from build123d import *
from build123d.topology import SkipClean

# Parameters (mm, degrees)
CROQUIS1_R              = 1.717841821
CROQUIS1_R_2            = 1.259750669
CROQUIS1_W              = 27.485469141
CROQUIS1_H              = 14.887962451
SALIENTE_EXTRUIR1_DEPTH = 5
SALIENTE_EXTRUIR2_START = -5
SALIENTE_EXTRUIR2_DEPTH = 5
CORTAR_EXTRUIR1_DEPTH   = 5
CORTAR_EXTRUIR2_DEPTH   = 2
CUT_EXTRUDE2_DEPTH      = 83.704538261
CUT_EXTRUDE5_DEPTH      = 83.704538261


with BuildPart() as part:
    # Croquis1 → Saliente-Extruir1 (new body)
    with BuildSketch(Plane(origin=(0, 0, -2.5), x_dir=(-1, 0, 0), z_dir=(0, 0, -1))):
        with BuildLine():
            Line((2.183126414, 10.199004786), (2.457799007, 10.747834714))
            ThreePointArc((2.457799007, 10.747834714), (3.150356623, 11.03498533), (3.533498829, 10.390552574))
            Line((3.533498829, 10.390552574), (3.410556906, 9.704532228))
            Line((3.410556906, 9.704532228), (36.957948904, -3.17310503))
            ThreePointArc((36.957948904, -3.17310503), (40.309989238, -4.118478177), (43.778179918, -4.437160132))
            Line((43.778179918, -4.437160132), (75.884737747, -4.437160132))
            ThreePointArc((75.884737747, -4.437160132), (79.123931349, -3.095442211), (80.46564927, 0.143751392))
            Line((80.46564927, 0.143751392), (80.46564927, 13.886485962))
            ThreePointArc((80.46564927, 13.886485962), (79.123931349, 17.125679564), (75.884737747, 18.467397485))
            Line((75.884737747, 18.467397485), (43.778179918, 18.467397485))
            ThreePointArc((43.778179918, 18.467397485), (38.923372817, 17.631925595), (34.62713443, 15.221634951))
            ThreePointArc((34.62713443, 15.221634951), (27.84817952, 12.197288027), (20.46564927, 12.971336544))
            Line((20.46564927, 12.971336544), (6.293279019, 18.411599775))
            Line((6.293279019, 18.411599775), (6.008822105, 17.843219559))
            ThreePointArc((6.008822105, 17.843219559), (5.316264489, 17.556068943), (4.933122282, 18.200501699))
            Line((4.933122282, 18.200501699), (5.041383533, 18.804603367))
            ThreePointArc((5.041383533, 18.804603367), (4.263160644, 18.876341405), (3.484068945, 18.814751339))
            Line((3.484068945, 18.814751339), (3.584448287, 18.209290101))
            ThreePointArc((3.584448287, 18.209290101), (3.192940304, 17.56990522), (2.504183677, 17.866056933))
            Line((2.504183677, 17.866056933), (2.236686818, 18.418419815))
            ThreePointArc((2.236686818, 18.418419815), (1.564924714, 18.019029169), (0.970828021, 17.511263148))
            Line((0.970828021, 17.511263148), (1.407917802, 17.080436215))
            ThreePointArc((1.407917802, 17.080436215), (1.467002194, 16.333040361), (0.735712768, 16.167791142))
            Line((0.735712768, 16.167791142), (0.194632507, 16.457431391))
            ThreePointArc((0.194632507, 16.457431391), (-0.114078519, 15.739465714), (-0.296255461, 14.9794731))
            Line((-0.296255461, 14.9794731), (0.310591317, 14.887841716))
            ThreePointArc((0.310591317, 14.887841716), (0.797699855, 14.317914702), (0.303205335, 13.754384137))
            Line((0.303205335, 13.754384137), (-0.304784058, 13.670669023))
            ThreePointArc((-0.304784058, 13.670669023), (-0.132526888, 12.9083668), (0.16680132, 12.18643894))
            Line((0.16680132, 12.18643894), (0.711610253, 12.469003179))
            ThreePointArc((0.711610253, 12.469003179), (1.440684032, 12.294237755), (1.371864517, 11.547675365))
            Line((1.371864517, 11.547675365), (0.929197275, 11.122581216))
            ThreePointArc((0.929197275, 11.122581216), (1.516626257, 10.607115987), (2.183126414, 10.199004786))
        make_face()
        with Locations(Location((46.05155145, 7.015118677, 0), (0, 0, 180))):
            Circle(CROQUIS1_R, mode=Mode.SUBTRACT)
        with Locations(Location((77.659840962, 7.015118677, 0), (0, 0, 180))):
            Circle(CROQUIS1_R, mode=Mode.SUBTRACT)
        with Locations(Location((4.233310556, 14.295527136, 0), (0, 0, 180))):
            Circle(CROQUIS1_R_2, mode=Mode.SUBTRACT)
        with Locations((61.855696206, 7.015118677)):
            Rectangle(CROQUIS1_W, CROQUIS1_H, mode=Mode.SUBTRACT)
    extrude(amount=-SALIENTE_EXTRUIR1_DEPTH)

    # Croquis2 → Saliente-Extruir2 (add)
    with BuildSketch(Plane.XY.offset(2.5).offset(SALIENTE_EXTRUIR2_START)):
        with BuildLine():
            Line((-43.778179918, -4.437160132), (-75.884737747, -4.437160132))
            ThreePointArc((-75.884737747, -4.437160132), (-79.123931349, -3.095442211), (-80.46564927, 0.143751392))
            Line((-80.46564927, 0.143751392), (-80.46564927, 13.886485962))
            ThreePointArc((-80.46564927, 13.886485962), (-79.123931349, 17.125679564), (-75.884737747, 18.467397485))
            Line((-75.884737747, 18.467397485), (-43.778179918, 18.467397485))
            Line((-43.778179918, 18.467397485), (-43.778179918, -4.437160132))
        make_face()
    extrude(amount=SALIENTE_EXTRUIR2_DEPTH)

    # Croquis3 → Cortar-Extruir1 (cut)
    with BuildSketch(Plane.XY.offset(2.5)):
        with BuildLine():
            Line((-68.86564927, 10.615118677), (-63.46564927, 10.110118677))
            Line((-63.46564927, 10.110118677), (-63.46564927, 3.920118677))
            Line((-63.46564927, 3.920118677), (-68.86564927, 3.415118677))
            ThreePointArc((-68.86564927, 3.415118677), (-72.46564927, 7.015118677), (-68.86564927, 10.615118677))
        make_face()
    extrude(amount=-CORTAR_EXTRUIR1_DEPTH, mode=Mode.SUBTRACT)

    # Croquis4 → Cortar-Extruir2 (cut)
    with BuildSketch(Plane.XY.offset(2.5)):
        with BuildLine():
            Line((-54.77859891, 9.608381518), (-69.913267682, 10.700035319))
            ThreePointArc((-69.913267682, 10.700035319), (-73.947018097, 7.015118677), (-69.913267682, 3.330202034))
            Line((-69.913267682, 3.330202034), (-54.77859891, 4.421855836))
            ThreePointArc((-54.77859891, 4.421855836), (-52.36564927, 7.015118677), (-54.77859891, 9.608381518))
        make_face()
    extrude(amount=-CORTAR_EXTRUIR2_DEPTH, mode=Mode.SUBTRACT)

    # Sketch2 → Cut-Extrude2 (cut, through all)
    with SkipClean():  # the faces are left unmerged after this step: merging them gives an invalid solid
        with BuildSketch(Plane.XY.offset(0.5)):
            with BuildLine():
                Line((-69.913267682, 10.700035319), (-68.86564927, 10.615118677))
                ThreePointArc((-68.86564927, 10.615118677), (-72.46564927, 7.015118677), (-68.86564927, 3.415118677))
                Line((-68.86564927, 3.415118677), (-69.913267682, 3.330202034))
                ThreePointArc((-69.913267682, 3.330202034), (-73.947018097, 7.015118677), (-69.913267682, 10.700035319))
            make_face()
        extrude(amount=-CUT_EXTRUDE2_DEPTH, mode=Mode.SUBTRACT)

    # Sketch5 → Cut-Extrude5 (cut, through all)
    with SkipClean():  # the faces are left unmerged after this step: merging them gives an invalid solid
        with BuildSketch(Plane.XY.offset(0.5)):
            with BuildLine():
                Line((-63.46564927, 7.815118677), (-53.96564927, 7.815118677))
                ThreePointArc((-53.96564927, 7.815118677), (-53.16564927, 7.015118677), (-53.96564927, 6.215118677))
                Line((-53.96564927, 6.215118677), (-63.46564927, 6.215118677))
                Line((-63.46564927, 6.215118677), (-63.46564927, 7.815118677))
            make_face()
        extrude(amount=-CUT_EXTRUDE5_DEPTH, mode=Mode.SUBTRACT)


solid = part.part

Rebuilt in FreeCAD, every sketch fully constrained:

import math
import FreeCAD as App
import Part
import Sketcher

V = App.Vector
Q = App.Units.Quantity


def add_polygon(sketch, points):
    """Adds a closed chain of lines whose ends are joined by coincident constraints."""
    first, n = sketch.GeometryCount, len(points)
    for a, b in zip(points, points[1:] + points[:1]):
        sketch.addGeometry(Part.LineSegment(App.Vector(*a, 0), App.Vector(*b, 0)), False)
    for i in range(n):
        sketch.addConstraint(Sketcher.Constraint("Coincident", first + i, 2, first + (i + 1) % n, 1))

doc = App.newDocument("Part")
body = doc.addObject("PartDesign::Body", "Body")

# Sketch on XY plane
sketch1 = doc.addObject("Sketcher::SketchObject", "Sketch")
body.addObject(sketch1)
sketch1.AttachmentSupport = (doc.XY_Plane, [""])
sketch1.MapMode = "FlatFace"
sketch1.AttachmentOffset = App.Placement(V(0, 0, -2.5), App.Rotation())
sketch1.addGeometry(Part.LineSegment(V(-2.183126, 10.199005, 0), V(-2.457799, 10.747835, 0)), False)  # 0
sketch1.addGeometry(Part.ArcOfCircle(Part.Circle(V(-2.969864, 10.491562, 0), V(0, 0, 1), 0.572614), math.radians(26.586564), math.radians(190.160142)), False)  # 1
sketch1.addGeometry(Part.LineSegment(V(-3.533499, 10.390553, 0), V(-3.410557, 9.704532, 0)), False)  # 2
sketch1.addGeometry(Part.LineSegment(V(-3.410557, 9.704532, 0), V(-36.957949, -3.173105, 0)), False)  # 3
sketch1.addGeometry(Part.ArcOfCircle(Part.Circle(V(-43.77818, 14.594204, 0), V(0, 0, 1), 19.031364), math.radians(-90), math.radians(-69)), False)  # 4
sketch1.addGeometry(Part.LineSegment(V(-43.77818, -4.43716, 0), V(-75.884738, -4.43716, 0)), False)  # 5
sketch1.addGeometry(Part.ArcOfCircle(Part.Circle(V(-75.884738, 0.143751, 0), V(0, 0, 1), 4.580912), math.radians(180), math.radians(270)), False)  # 6
sketch1.addGeometry(Part.LineSegment(V(-80.465649, 0.143751, 0), V(-80.465649, 13.886486, 0)), False)  # 7
sketch1.addGeometry(Part.ArcOfCircle(Part.Circle(V(-75.884738, 13.886486, 0), V(0, 0, 1), 4.580912), math.radians(90), math.radians(180)), False)  # 8
sketch1.addGeometry(Part.LineSegment(V(-75.884738, 18.467397, 0), V(-43.77818, 18.467397, 0)), False)  # 9
sketch1.addGeometry(Part.ArcOfCircle(Part.Circle(V(-43.77818, 3.944368, 0), V(0, 0, 1), 14.523029), math.radians(50.942068), math.radians(90)), False)  # 10
sketch1.addGeometry(Part.ArcOfCircle(Part.Circle(V(-25.59985, 26.346386, 0), V(0, 0, 1), 14.326617), math.radians(-129.057932), math.radians(-69)), False)  # 11
sketch1.addGeometry(Part.LineSegment(V(-20.465649, 12.971337, 0), V(-6.293279, 18.4116, 0)), False)  # 12
sketch1.addGeometry(Part.LineSegment(V(-6.293279, 18.4116, 0), V(-6.008822, 17.84322, 0)), False)  # 13
sketch1.addGeometry(Part.ArcOfCircle(Part.Circle(V(-5.496757, 18.099493, 0), V(0, 0, 1), 0.572614), math.radians(-153.413436), math.radians(10.160142)), False)  # 14
sketch1.addGeometry(Part.LineSegment(V(-4.933122, 18.200502, 0), V(-5.041384, 18.804603, 0)), False)  # 15
sketch1.addGeometry(Part.ArcOfCircle(Part.Circle(V(-4.233311, 14.295527, 0), V(0, 0, 1), 4.580911), math.radians(80.586563), math.radians(100.160142)), False)  # 16
sketch1.addGeometry(Part.LineSegment(V(-3.484069, 18.814751, 0), V(-3.584448, 18.20929, 0)), False)  # 17
sketch1.addGeometry(Part.ArcOfCircle(Part.Circle(V(-3.019545, 18.115635, 0), V(0, 0, 1), 0.572614), math.radians(170.586564), math.radians(334.160142)), False)  # 18
sketch1.addGeometry(Part.LineSegment(V(-2.504184, 17.866057, 0), V(-2.236687, 18.41842, 0)), False)  # 19
sketch1.addGeometry(Part.ArcOfCircle(Part.Circle(V(-4.233311, 14.295527, 0), V(0, 0, 1), 4.580912), math.radians(44.586563), math.radians(64.160142)), False)  # 20
sketch1.addGeometry(Part.LineSegment(V(-0.970828, 17.511263, 0), V(-1.407918, 17.080436, 0)), False)  # 21
sketch1.addGeometry(Part.ArcOfCircle(Part.Circle(V(-1.005951, 16.672626, 0), V(0, 0, 1), 0.572614), math.radians(134.586564), math.radians(298.160142)), False)  # 22
sketch1.addGeometry(Part.LineSegment(V(-0.735713, 16.167791, 0), V(-0.194633, 16.457431, 0)), False)  # 23
sketch1.addGeometry(Part.ArcOfCircle(Part.Circle(V(-4.233311, 14.295527, 0), V(0, 0, 1), 4.580912), math.radians(8.586564), math.radians(28.160142)), False)  # 24
sketch1.addGeometry(Part.LineSegment(V(0.296255, 14.979473, 0), V(-0.310591, 14.887842, 0)), False)  # 25
sketch1.addGeometry(Part.ArcOfCircle(Part.Circle(V(-0.225098, 14.321646, 0), V(0, 0, 1), 0.572614), math.radians(98.586564), math.radians(262.160142)), False)  # 26
sketch1.addGeometry(Part.LineSegment(V(-0.303205, 13.754384, 0), V(0.304784, 13.670669, 0)), False)  # 27
sketch1.addGeometry(Part.ArcOfCircle(Part.Circle(V(-4.233311, 14.295527, 0), V(0, 0, 1), 4.580912), math.radians(-27.413436), math.radians(-7.839858)), False)  # 28
sketch1.addGeometry(Part.LineSegment(V(-0.166801, 12.186439, 0), V(-0.71161, 12.469003, 0)), False)  # 29
sketch1.addGeometry(Part.ArcOfCircle(Part.Circle(V(-0.975246, 11.96069, 0), V(0, 0, 1), 0.572614), math.radians(62.586563), math.radians(226.160142)), False)  # 30
sketch1.addGeometry(Part.LineSegment(V(-1.371865, 11.547675, 0), V(-0.929197, 11.122581, 0)), False)  # 31
sketch1.addGeometry(Part.ArcOfCircle(Part.Circle(V(-4.233311, 14.295527, 0), V(0, 0, 1), 4.580912), math.radians(-63.413437), math.radians(-43.839858)), False)  # 32
sketch1.addGeometry(Part.Circle(V(-46.051551, 7.015119, 0), V(0, 0, 1), 1.717842), False)  # 33
add_polygon(sketch1, [(-75.598431, -0.428863), (-48.112962, -0.428863), (-48.112962, 14.4591), (-75.598431, 14.4591)])  # lines 34-37
sketch1.addGeometry(Part.Circle(V(-77.659841, 7.015119, 0), V(0, 0, 1), 1.717842), False)  # 38
sketch1.addGeometry(Part.Circle(V(-4.233311, 14.295527, 0), V(0, 0, 1), 1.259751), False)  # 39
sketch1.addConstraint([
    Sketcher.Constraint("Tangent", 0, 2, 1, 1),
    Sketcher.Constraint("Tangent", 1, 2, 2, 1),
    Sketcher.Constraint("Coincident", 2, 2, 3, 1),
    Sketcher.Constraint("Tangent", 3, 2, 4, 2),
    Sketcher.Constraint("Tangent", 4, 1, 5, 1),
    Sketcher.Constraint("Tangent", 5, 2, 6, 2),
    Sketcher.Constraint("Tangent", 6, 1, 7, 1),
    Sketcher.Constraint("Tangent", 7, 2, 8, 2),
    Sketcher.Constraint("Tangent", 8, 1, 9, 1),
    Sketcher.Constraint("Tangent", 9, 2, 10, 2),
    Sketcher.Constraint("Tangent", 10, 1, 11, 1),
    Sketcher.Constraint("Tangent", 11, 2, 12, 1),
    Sketcher.Constraint("Coincident", 12, 2, 13, 1),
    Sketcher.Constraint("Tangent", 13, 2, 14, 1),
    Sketcher.Constraint("Tangent", 14, 2, 15, 1),
    Sketcher.Constraint("Coincident", 15, 2, 16, 2),
    Sketcher.Constraint("Coincident", 16, 1, 17, 1),
    Sketcher.Constraint("Tangent", 17, 2, 18, 1),
    Sketcher.Constraint("Tangent", 18, 2, 19, 1),
    Sketcher.Constraint("Coincident", 19, 2, 20, 2),
    Sketcher.Constraint("Coincident", 20, 1, 21, 1),
    Sketcher.Constraint("Tangent", 21, 2, 22, 1),
    Sketcher.Constraint("Tangent", 22, 2, 23, 1),
    Sketcher.Constraint("Coincident", 23, 2, 24, 2),
    Sketcher.Constraint("Coincident", 24, 1, 25, 1),
    Sketcher.Constraint("Tangent", 25, 2, 26, 1),
    Sketcher.Constraint("Tangent", 26, 2, 27, 1),
    Sketcher.Constraint("Coincident", 27, 2, 28, 2),
    Sketcher.Constraint("Coincident", 28, 1, 29, 1),
    Sketcher.Constraint("Tangent", 29, 2, 30, 1),
    Sketcher.Constraint("Tangent", 30, 2, 31, 1),
    Sketcher.Constraint("Coincident", 31, 2, 32, 2),
    Sketcher.Constraint("Coincident", 32, 1, 0, 1),
    Sketcher.Constraint("Horizontal", 5),
    Sketcher.Constraint("Vertical", 7),
    Sketcher.Constraint("Horizontal", 9),
    Sketcher.Constraint("Horizontal", 34),
    Sketcher.Constraint("Vertical", 35),
    Sketcher.Constraint("Horizontal", 36),
    Sketcher.Constraint("Vertical", 37),
    Sketcher.Constraint("Coincident", 20, 3, 16, 3),
    Sketcher.Constraint("Coincident", 24, 3, 16, 3),
    Sketcher.Constraint("Coincident", 28, 3, 16, 3),
    Sketcher.Constraint("Coincident", 32, 3, 16, 3),
    Sketcher.Constraint("Coincident", 39, 3, 16, 3),
    Sketcher.Constraint("Equal", 6, 8),
    Sketcher.Constraint("Equal", 1, 14),
    Sketcher.Constraint("Equal", 8, 16),
    Sketcher.Constraint("Equal", 14, 18),
    Sketcher.Constraint("Equal", 16, 20),
    Sketcher.Constraint("Equal", 18, 22),
    Sketcher.Constraint("Equal", 20, 24),
    Sketcher.Constraint("Equal", 22, 26),
    Sketcher.Constraint("Equal", 24, 28),
    Sketcher.Constraint("Equal", 26, 30),
    Sketcher.Constraint("Equal", 28, 32),
    Sketcher.Constraint("Equal", 33, 38),
    Sketcher.Constraint("Parallel", 3, 12),
    Sketcher.Constraint("Parallel", 0, 13),
    Sketcher.Constraint("Parallel", 2, 15),
    Sketcher.Constraint("Horizontal", 33, 3, 38, 3),
    Sketcher.Constraint("Vertical", 4, 3, 10, 3),
    Sketcher.Constraint("Equal", 0, 15),
    Sketcher.Constraint("Equal", 15, 17),
    Sketcher.Constraint("Equal", 17, 19),
    Sketcher.Constraint("Equal", 19, 21),
    Sketcher.Constraint("Equal", 21, 23),
    Sketcher.Constraint("Equal", 23, 25),
    Sketcher.Constraint("Equal", 25, 27),
    Sketcher.Constraint("Equal", 27, 29),
    Sketcher.Constraint("Equal", 29, 31),
    Sketcher.Constraint("Angle", 3, Q("-159 deg")),
    Sketcher.Constraint("Diameter", 39, 2.519501),
    Sketcher.Constraint("Radius", 6, 4.580912),
    Sketcher.Constraint("Radius", 10, 14.523029),
    Sketcher.Constraint("Diameter", 33, 3.435684),
    Sketcher.Constraint("Radius", 1, 0.572614),
    Sketcher.Constraint("Radius", 4, 19.031364),
    Sketcher.Constraint("Radius", 11, 14.326617),
    Sketcher.Constraint("DistanceX", 1, 3, 30, 2, 1.598),
    Sketcher.Constraint("DistanceX", 34, 1, 34, 2, 27.485469),
    Sketcher.Constraint("DistanceX", 26, 3, -1, 1, 0.225098),
    Sketcher.Constraint("DistanceX", 0, 2, -1, 1, 2.457799),
    Sketcher.Constraint("DistanceX", 1, 2, -1, 1, 3.533499),
    Sketcher.Constraint("DistanceY", -1, 1, 12, 2, 18.4116),
    Sketcher.Constraint("DistanceY", -1, 1, 14, 2, 18.200502),
    Sketcher.Constraint("DistanceX", 28, 1, -1, 1, 0.166801),
    Sketcher.Constraint("DistanceY", -1, 1, 35, 2, 14.4591),
    Sketcher.Constraint("DistanceY", 8, 3, 11, 3, 12.4599),
    Sketcher.Constraint("DistanceY", 16, 3, 22, 3, 2.377099),
    Sketcher.Constraint("DistanceX", 33, 3, 11, 3, 20.451702),
    Sketcher.Constraint("DistanceY", 14, 2, 15, 2, 0.604102),
    Sketcher.Constraint("DistanceY", 21, 2, 18, 3, 1.035199),
    Sketcher.Constraint("DistanceX", 0, 2, 31, 2, 1.528602),
    Sketcher.Constraint("Distance", 2, 0.69695),
    Sketcher.Constraint("Distance", 3, 35.934121),
    Sketcher.Constraint("DistanceX", 5, 2, 5, 1, 32.106558),
    Sketcher.Constraint("DistanceY", 7, 1, 7, 2, 13.742735),
    Sketcher.Constraint("DistanceY", 35, 1, 35, 2, 14.887962),
    Sketcher.Constraint("DistanceY", -1, 1, 1, 3, 10.491562),
    Sketcher.Constraint("DistanceX", 22, 3, -1, 1, 1.005951),
    Sketcher.Constraint("DistanceY", -1, 1, 33, 3, 7.015119),
    Sketcher.Constraint("DistanceX", 38, 3, -1, 1, 77.659841),
    Sketcher.Constraint("DistanceX", 16, 1, -1, 1, 3.484069),
    Sketcher.Constraint("DistanceX", 25, 2, -1, 1, 0.310591),
    Sketcher.Constraint("DistanceX", 34, 2, -1, 1, 48.112962),
])
pad1 = doc.addObject("PartDesign::Pad", "Pad")
body.addObject(pad1)
pad1.Profile = sketch1
pad1.Length = 5

# Sketch on XY plane
sketch2 = doc.addObject("Sketcher::SketchObject", "Sketch001")
body.addObject(sketch2)
sketch2.AttachmentSupport = (doc.XY_Plane, [""])
sketch2.MapMode = "FlatFace"
sketch2.AttachmentOffset = App.Placement(V(0, 0, -2.5), App.Rotation())
sketch2.addGeometry([
    Part.LineSegment(V(-75.884738, -4.43716, 0), V(-43.77818, -4.43716, 0)),  # 0
    Part.LineSegment(V(-43.77818, -4.43716, 0), V(-43.77818, 18.467397, 0)),  # 1
    Part.LineSegment(V(-43.77818, 18.467397, 0), V(-75.884738, 18.467397, 0)),  # 2
    Part.ArcOfCircle(Part.Circle(V(-75.884738, 13.886486, 0), V(0, 0, 1), 4.580912), math.radians(90), math.radians(180)),  # 3
    Part.LineSegment(V(-80.465649, 13.886486, 0), V(-80.465649, 0.143751, 0)),  # 4
    Part.ArcOfCircle(Part.Circle(V(-75.884738, 0.143751, 0), V(0, 0, 1), 4.580912), math.radians(180), math.radians(270)),  # 5
], False)
sketch2.addConstraint([
    Sketcher.Constraint("Coincident", 0, 2, 1, 1),
    Sketcher.Constraint("Coincident", 1, 2, 2, 1),
    Sketcher.Constraint("Tangent", 2, 2, 3, 1),
    Sketcher.Constraint("Tangent", 3, 2, 4, 1),
    Sketcher.Constraint("Tangent", 4, 2, 5, 1),
    Sketcher.Constraint("Tangent", 5, 2, 0, 1),
    Sketcher.Constraint("Horizontal", 0),
    Sketcher.Constraint("Vertical", 1),
    Sketcher.Constraint("Horizontal", 2),
    Sketcher.Constraint("Vertical", 4),
    Sketcher.Constraint("Equal", 3, 5),
    Sketcher.Constraint("Radius", 3, 4.580912),
    Sketcher.Constraint("DistanceX", 0, 1, 0, 2, 32.106558),
    Sketcher.Constraint("DistanceY", 1, 1, 1, 2, 22.904558),
    Sketcher.Constraint("DistanceY", -1, 1, 5, 3, 0.143751),
    Sketcher.Constraint("DistanceX", 0, 2, -1, 1, 43.77818),
])
pad2 = doc.addObject("PartDesign::Pad", "Pad001")
body.addObject(pad2)
pad2.Profile = sketch2
pad2.Length = 5

# Sketch on XY plane
sketch3 = doc.addObject("Sketcher::SketchObject", "Sketch002")
body.addObject(sketch3)
sketch3.AttachmentSupport = (doc.XY_Plane, [""])
sketch3.MapMode = "FlatFace"
sketch3.AttachmentOffset = App.Placement(V(0, 0, 2.5), App.Rotation())
sketch3.addGeometry([
    Part.LineSegment(V(-63.465649, 10.110119, 0), V(-68.865649, 10.615119, 0)),
    Part.ArcOfCircle(Part.Circle(V(-68.865649, 7.015119, 0), V(0, 0, 1), 3.6), math.radians(90), math.radians(270)),
    Part.LineSegment(V(-68.865649, 3.415119, 0), V(-63.465649, 3.920119, 0)),
    Part.LineSegment(V(-63.465649, 3.920119, 0), V(-63.465649, 10.110119, 0)),
], False)
sketch3.addConstraint([
    Sketcher.Constraint("Coincident", 0, 2, 1, 1),
    Sketcher.Constraint("Coincident", 1, 2, 2, 1),
    Sketcher.Constraint("Coincident", 2, 2, 3, 1),
    Sketcher.Constraint("Coincident", 3, 2, 0, 1),
    Sketcher.Constraint("Vertical", 3),
    Sketcher.Constraint("Vertical", 1, 3, 0, 2),
    Sketcher.Constraint("Vertical", 0, 2, 1, 2),
    Sketcher.Constraint("Equal", 0, 2),
    Sketcher.Constraint("Radius", 1, 3.6),
    Sketcher.Constraint("DistanceY", 3, 1, 3, 2, 6.19),
    Sketcher.Constraint("DistanceX", 1, 2, 2, 2, 5.4),
    Sketcher.Constraint("DistanceX", 1, 3, -1, 1, 68.865649),
    Sketcher.Constraint("DistanceY", -1, 1, 1, 3, 7.015119),
])
pocket1 = doc.addObject("PartDesign::Pocket", "Pocket")
body.addObject(pocket1)
pocket1.Profile = sketch3
pocket1.Length = 5

# Sketch on XY plane
sketch4 = doc.addObject("Sketcher::SketchObject", "Sketch003")
body.addObject(sketch4)
sketch4.AttachmentSupport = (doc.XY_Plane, [""])
sketch4.MapMode = "FlatFace"
sketch4.AttachmentOffset = App.Placement(V(0, 0, 2.5), App.Rotation())
sketch4.addGeometry([
    Part.LineSegment(V(-54.778599, 9.608382, 0), V(-69.913268, 10.700035, 0)),
    Part.ArcOfCircle(Part.Circle(V(-70.247018, 7.015119, 0), V(0, 0, 1), 3.7), math.radians(84.824725), math.radians(275.175275)),
    Part.LineSegment(V(-69.913268, 3.330202, 0), V(-54.778599, 4.421856, 0)),
    Part.ArcOfCircle(Part.Circle(V(-54.965649, 7.015119, 0), V(0, 0, 1), 2.6), math.radians(-85.874437), math.radians(85.874437)),
], False)
sketch4.addConstraint([
    Sketcher.Constraint("Coincident", 0, 2, 1, 1),
    Sketcher.Constraint("Coincident", 1, 2, 2, 1),
    Sketcher.Constraint("Coincident", 2, 2, 3, 1),
    Sketcher.Constraint("Coincident", 3, 2, 0, 1),
    Sketcher.Constraint("Radius", 1, 3.7),
    Sketcher.Constraint("Radius", 3, 2.6),
    Sketcher.Constraint("DistanceX", 2, 2, -1, 1, 54.778599),
    Sketcher.Constraint("DistanceX", 3, 2, -1, 1, 54.778599),
    Sketcher.Constraint("DistanceX", 1, 3, -1, 1, 70.247018),
    Sketcher.Constraint("DistanceY", -1, 1, 1, 3, 7.015119),
    Sketcher.Constraint("DistanceX", 3, 3, -1, 1, 54.965649),
    Sketcher.Constraint("DistanceY", -1, 1, 3, 3, 7.015119),
    Sketcher.Constraint("DistanceX", 1, 3, 0, 2, 0.33375),
    Sketcher.Constraint("DistanceX", 1, 3, 1, 2, 0.33375),
])
pocket2 = doc.addObject("PartDesign::Pocket", "Pocket001")
body.addObject(pocket2)
pocket2.Profile = sketch4
pocket2.Length = 2

# Sketch on XY plane
sketch5 = doc.addObject("Sketcher::SketchObject", "Sketch004")
body.addObject(sketch5)
sketch5.AttachmentSupport = (doc.XY_Plane, [""])
sketch5.MapMode = "FlatFace"
sketch5.AttachmentOffset = App.Placement(V(0, 0, 0.5), App.Rotation())
sketch5.addGeometry([
    Part.LineSegment(V(-68.865649, 10.615119, 0), V(-69.913268, 10.700035, 0)),
    Part.ArcOfCircle(Part.Circle(V(-70.247018, 7.015119, 0), V(0, 0, 1), 3.7), math.radians(84.824725), math.radians(275.175275)),
    Part.LineSegment(V(-69.913268, 3.330202, 0), V(-68.865649, 3.415119, 0)),
    Part.ArcOfCircle(Part.Circle(V(-68.865649, 7.015119, 0), V(0, 0, 1), 3.6), math.radians(90), math.radians(270)),
], False)
sketch5.addConstraint([
    Sketcher.Constraint("Coincident", 0, 2, 1, 1),
    Sketcher.Constraint("Coincident", 1, 2, 2, 1),
    Sketcher.Constraint("Coincident", 2, 2, 3, 2),
    Sketcher.Constraint("Coincident", 3, 1, 0, 1),
    Sketcher.Constraint("Horizontal", 1, 3, 3, 3),
    Sketcher.Constraint("Vertical", 0, 2, 1, 2),
    Sketcher.Constraint("Vertical", 3, 3, 2, 2),
    Sketcher.Constraint("Vertical", 2, 2, 3, 1),
    Sketcher.Constraint("Radius", 1, 3.7),
    Sketcher.Constraint("Radius", 3, 3.6),
    Sketcher.Constraint("DistanceX", 1, 3, -1, 1, 70.247018),
    Sketcher.Constraint("DistanceY", -1, 1, 1, 3, 7.015119),
    Sketcher.Constraint("DistanceX", 3, 3, -1, 1, 68.865649),
    Sketcher.Constraint("DistanceX", 1, 3, 0, 2, 0.33375),
])
pocket3 = doc.addObject("PartDesign::Pocket", "Pocket002")
body.addObject(pocket3)
pocket3.Profile = sketch5
pocket3.Type = "ThroughAll"

# Sketch on XY plane
sketch6 = doc.addObject("Sketcher::SketchObject", "Sketch005")
body.addObject(sketch6)
sketch6.AttachmentSupport = (doc.XY_Plane, [""])
sketch6.MapMode = "FlatFace"
sketch6.AttachmentOffset = App.Placement(V(0, 0, 0.5), App.Rotation())
sketch6.addGeometry([
    Part.LineSegment(V(-53.965649, 7.815119, 0), V(-63.465649, 7.815119, 0)),
    Part.LineSegment(V(-63.465649, 7.815119, 0), V(-63.465649, 6.215119, 0)),
    Part.LineSegment(V(-63.465649, 6.215119, 0), V(-53.965649, 6.215119, 0)),
    Part.ArcOfCircle(Part.Circle(V(-53.965649, 7.015119, 0), V(0, 0, 1), 0.8), math.radians(-90), math.radians(90)),
], False)
sketch6.addConstraint([
    Sketcher.Constraint("Coincident", 0, 2, 1, 1),
    Sketcher.Constraint("Coincident", 1, 2, 2, 1),
    Sketcher.Constraint("Tangent", 2, 2, 3, 1),
    Sketcher.Constraint("Tangent", 3, 2, 0, 1),
    Sketcher.Constraint("Horizontal", 0),
    Sketcher.Constraint("Vertical", 1),
    Sketcher.Constraint("Horizontal", 2),
    Sketcher.Constraint("Radius", 3, 0.8),
    Sketcher.Constraint("DistanceX", 0, 2, 0, 1, 9.5),
    Sketcher.Constraint("DistanceX", 3, 3, -1, 1, 53.965649),
    Sketcher.Constraint("DistanceY", -1, 1, 3, 3, 7.015119),
])
pocket4 = doc.addObject("PartDesign::Pocket", "Pocket003")
body.addObject(pocket4)
pocket4.Profile = sketch6
pocket4.Type = "ThroughAll"

doc.recompute()
